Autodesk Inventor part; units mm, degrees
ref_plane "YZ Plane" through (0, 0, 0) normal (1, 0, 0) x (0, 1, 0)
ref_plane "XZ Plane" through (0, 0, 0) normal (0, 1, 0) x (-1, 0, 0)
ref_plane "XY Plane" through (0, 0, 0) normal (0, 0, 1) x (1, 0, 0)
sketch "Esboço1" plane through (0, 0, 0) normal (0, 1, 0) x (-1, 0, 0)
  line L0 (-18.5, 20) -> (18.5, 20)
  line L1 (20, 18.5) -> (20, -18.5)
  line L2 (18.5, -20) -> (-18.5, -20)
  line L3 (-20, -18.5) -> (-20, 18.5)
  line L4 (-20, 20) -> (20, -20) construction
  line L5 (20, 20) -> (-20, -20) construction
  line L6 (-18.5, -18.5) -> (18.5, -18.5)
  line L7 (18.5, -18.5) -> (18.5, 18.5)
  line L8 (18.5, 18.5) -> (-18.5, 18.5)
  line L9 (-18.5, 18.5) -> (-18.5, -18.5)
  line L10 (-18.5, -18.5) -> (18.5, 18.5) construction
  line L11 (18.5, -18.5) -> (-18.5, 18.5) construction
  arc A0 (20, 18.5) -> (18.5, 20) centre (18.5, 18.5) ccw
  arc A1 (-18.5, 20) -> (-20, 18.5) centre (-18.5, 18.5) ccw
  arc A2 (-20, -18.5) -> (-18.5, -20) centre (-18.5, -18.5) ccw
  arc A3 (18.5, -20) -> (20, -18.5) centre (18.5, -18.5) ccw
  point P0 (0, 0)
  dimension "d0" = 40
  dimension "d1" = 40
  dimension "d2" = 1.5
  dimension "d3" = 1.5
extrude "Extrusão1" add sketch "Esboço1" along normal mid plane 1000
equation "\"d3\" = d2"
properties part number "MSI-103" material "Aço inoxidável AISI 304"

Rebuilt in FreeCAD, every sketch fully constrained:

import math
import FreeCAD as App
import Part
import Sketcher
from FreeCAD import Vector
Q = App.Units.Quantity

doc = App.newDocument("Part")
params = doc.addObject("Spreadsheet::Sheet", "Params")
for row, (alias, value) in enumerate([
    ("sketch1_radius", "1.5 mm"),
    ("sketch1_width", "37 mm"),
    ("pad1_length", "1000 mm"),
], start=1):
    params.set(f"A{row}", alias)
    params.set(f"B{row}", "=" + value)
    params.setAlias(f"B{row}", alias)

body = doc.addObject("PartDesign::Body", "Body")

sketch1 = doc.addObject("Sketcher::SketchObject", "Sketch")
body.addObject(sketch1)
sketch1.AttachmentSupport = (doc.XZ_Plane, [""])
sketch1.MapMode = "FlatFace"
sketch1.addGeometry(Part.LineSegment(Vector(-18.5, 20, 0), Vector(18.5, 20, 0)), False)
sketch1.addGeometry(Part.ArcOfCircle(Part.Circle(Vector(18.5, 18.5, 0), Vector(0, 0, 1), 1.5), math.radians(0), math.radians(90)), False)
sketch1.addGeometry(Part.LineSegment(Vector(20, 18.5, 0), Vector(20, -18.5, 0)), False)
sketch1.addGeometry(Part.ArcOfCircle(Part.Circle(Vector(18.5, -18.5, 0), Vector(0, 0, 1), 1.5), math.radians(-90), math.radians(0)), False)
sketch1.addGeometry(Part.LineSegment(Vector(18.5, -20, 0), Vector(-18.5, -20, 0)), False)
sketch1.addGeometry(Part.ArcOfCircle(Part.Circle(Vector(-18.5, -18.5, 0), Vector(0, 0, 1), 1.5), math.radians(180), math.radians(270)), False)
sketch1.addGeometry(Part.LineSegment(Vector(-20, -18.5, 0), Vector(-20, 18.5, 0)), False)
sketch1.addGeometry(Part.ArcOfCircle(Part.Circle(Vector(-18.5, 18.5, 0), Vector(0, 0, 1), 1.5), math.radians(90), math.radians(180)), False)
sketch1.addGeometry(Part.LineSegment(Vector(-18.5, -18.5, 0), Vector(18.5, -18.5, 0)), False)
sketch1.addGeometry(Part.LineSegment(Vector(18.5, -18.5, 0), Vector(18.5, 18.5, 0)), False)
sketch1.addGeometry(Part.LineSegment(Vector(18.5, 18.5, 0), Vector(-18.5, 18.5, 0)), False)
sketch1.addGeometry(Part.LineSegment(Vector(-18.5, 18.5, 0), Vector(-18.5, -18.5, 0)), False)
sketch1.addConstraint(Sketcher.Constraint("Tangent", 0, 2, 1, 2))
sketch1.addConstraint(Sketcher.Constraint("Tangent", 1, 1, 2, 1))
sketch1.addConstraint(Sketcher.Constraint("Tangent", 2, 2, 3, 2))
sketch1.addConstraint(Sketcher.Constraint("Tangent", 3, 1, 4, 1))
sketch1.addConstraint(Sketcher.Constraint("Tangent", 4, 2, 5, 2))
sketch1.addConstraint(Sketcher.Constraint("Tangent", 5, 1, 6, 1))
sketch1.addConstraint(Sketcher.Constraint("Tangent", 6, 2, 7, 2))
sketch1.addConstraint(Sketcher.Constraint("Tangent", 7, 1, 0, 1))
sketch1.addConstraint(Sketcher.Constraint("Coincident", 8, 2, 9, 1))
sketch1.addConstraint(Sketcher.Constraint("Coincident", 9, 2, 10, 1))
sketch1.addConstraint(Sketcher.Constraint("Coincident", 10, 2, 11, 1))
sketch1.addConstraint(Sketcher.Constraint("Coincident", 11, 2, 8, 1))
sketch1.addConstraint(Sketcher.Constraint("Horizontal", 0))
sketch1.addConstraint(Sketcher.Constraint("Vertical", 2))
sketch1.addConstraint(Sketcher.Constraint("Horizontal", 4))
sketch1.addConstraint(Sketcher.Constraint("Vertical", 6))
sketch1.addConstraint(Sketcher.Constraint("Horizontal", 8))
sketch1.addConstraint(Sketcher.Constraint("Vertical", 9))
sketch1.addConstraint(Sketcher.Constraint("Horizontal", 10))
sketch1.addConstraint(Sketcher.Constraint("Vertical", 11))
sketch1.addConstraint(Sketcher.Constraint("Coincident", 8, 2, 3, 3))
sketch1.addConstraint(Sketcher.Constraint("Coincident", 9, 2, 1, 3))
sketch1.addConstraint(Sketcher.Constraint("Coincident", 10, 2, 7, 3))
sketch1.addConstraint(Sketcher.Constraint("Equal", 3, 5))
sketch1.addConstraint(Sketcher.Constraint("Symmetric", 1, 3, 5, 3, -1, 1))
sketch1.addConstraint(Sketcher.Constraint("Equal", 10, 2))
sketch1.addConstraint(Sketcher.Constraint("Radius", 1, Q("1.5 mm")))
sketch1.addConstraint(Sketcher.Constraint("DistanceX", 0, 1, 0, 2, Q("37 mm")))
sketch1.setExpression("Constraints[26]", "Params.sketch1_radius")
sketch1.setExpression("Constraints[27]", "Params.sketch1_width")
pad1 = doc.addObject("PartDesign::Pad", "Pad")
body.addObject(pad1)
pad1.Profile = sketch1
pad1.setExpression("Length", "Params.pad1_length")
pad1.Midplane = True

doc.recompute()
